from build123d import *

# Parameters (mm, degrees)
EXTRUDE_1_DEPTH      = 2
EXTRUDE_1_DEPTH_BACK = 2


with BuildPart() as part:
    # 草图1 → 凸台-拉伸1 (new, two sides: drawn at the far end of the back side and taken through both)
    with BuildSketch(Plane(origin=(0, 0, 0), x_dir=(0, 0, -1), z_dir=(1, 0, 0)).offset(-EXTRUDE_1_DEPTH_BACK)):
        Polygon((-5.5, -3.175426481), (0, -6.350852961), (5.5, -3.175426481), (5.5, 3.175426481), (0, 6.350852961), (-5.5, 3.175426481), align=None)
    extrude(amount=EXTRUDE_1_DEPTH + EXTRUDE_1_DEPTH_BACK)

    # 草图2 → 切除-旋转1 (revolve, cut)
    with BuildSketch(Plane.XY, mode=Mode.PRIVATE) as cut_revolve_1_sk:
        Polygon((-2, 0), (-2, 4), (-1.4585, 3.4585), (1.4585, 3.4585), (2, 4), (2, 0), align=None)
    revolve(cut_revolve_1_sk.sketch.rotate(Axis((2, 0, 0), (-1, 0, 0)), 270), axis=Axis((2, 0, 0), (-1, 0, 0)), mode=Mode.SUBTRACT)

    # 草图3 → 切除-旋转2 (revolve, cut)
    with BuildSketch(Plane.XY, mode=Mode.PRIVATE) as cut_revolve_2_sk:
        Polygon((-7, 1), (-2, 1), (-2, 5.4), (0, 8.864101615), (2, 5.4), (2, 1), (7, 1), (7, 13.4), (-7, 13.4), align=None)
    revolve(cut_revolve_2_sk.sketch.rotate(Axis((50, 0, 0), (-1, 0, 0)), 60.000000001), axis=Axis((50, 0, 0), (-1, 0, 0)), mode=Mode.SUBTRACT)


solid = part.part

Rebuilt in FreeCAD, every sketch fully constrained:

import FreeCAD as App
import Part
import Sketcher

V = App.Vector
Q = App.Units.Quantity

doc = App.newDocument("Part")
body = doc.addObject("PartDesign::Body", "Body")

# Sketch on YZ plane
sketch1 = doc.addObject("Sketcher::SketchObject", "Sketch")
body.addObject(sketch1)
sketch1.AttachmentSupport = (doc.YZ_Plane, [""])
sketch1.MapMode = "FlatFace"
sketch1.addGeometry([
    Part.LineSegment(V(-3.175426, 5.5, 0), V(-6.350853, 0, 0)),  # 0
    Part.LineSegment(V(-6.350853, 0, 0), V(-3.175426, -5.5, 0)),  # 1
    Part.LineSegment(V(-3.175426, -5.5, 0), V(3.175426, -5.5, 0)),  # 2
    Part.LineSegment(V(3.175426, -5.5, 0), V(6.350853, 0, 0)),  # 3
    Part.LineSegment(V(6.350853, 0, 0), V(3.175426, 5.5, 0)),  # 4
    Part.LineSegment(V(3.175426, 5.5, 0), V(-3.175426, 5.5, 0)),  # 5
], False)
sketch1.addConstraint([
    Sketcher.Constraint("Coincident", 0, 2, 1, 1),
    Sketcher.Constraint("Coincident", 1, 2, 2, 1),
    Sketcher.Constraint("Coincident", 2, 2, 3, 1),
    Sketcher.Constraint("Coincident", 3, 2, 4, 1),
    Sketcher.Constraint("Coincident", 4, 2, 5, 1),
    Sketcher.Constraint("Coincident", 5, 2, 0, 1),
    Sketcher.Constraint("Horizontal", 2),
    Sketcher.Constraint("Horizontal", 5),
    Sketcher.Constraint("Symmetric", 0, 2, 3, 2, -1, 1),
    Sketcher.Constraint("Symmetric", 1, 2, 4, 2, -1, 1),
    Sketcher.Constraint("PointOnObject", 0, 2, -1),
    Sketcher.Constraint("Parallel", 0, 3),
    Sketcher.Constraint("Vertical", 2, 2, 4, 2),
    Sketcher.Constraint("Angle", 0, Q("-120 deg")),
    Sketcher.Constraint("DistanceY", 2, 2, 4, 2, 11.0),
    Sketcher.Constraint("DistanceX", 2, 1, 2, 2, 6.350853),
])
pad1 = doc.addObject("PartDesign::Pad", "Pad")
body.addObject(pad1)
pad1.Profile = sketch1
pad1.Type = "TwoLengths"
pad1.Length = 2
pad1.Length2 = 2

# Sketch on XY plane
sketch2 = doc.addObject("Sketcher::SketchObject", "Sketch001")
body.addObject(sketch2)
sketch2.AttachmentSupport = (doc.XY_Plane, [""])
sketch2.MapMode = "FlatFace"
sketch2.addGeometry([
    Part.LineSegment(V(-2, 4, 0), V(-2, 0, 0)),  # 0
    Part.LineSegment(V(-2, 0, 0), V(2, 0, 0)),  # 1
    Part.LineSegment(V(2, 0, 0), V(2, 4, 0)),  # 2
    Part.LineSegment(V(2, 4, 0), V(1.4585, 3.4585, 0)),  # 3
    Part.LineSegment(V(1.4585, 3.4585, 0), V(-1.4585, 3.4585, 0)),  # 4
    Part.LineSegment(V(-1.4585, 3.4585, 0), V(-2, 4, 0)),  # 5
], False)
sketch2.addConstraint([
    Sketcher.Constraint("Coincident", 0, 2, 1, 1),
    Sketcher.Constraint("Coincident", 1, 2, 2, 1),
    Sketcher.Constraint("Coincident", 2, 2, 3, 1),
    Sketcher.Constraint("Coincident", 3, 2, 4, 1),
    Sketcher.Constraint("Coincident", 4, 2, 5, 1),
    Sketcher.Constraint("Coincident", 5, 2, 0, 1),
    Sketcher.Constraint("Vertical", 0),
    Sketcher.Constraint("Horizontal", 1),
    Sketcher.Constraint("Vertical", 2),
    Sketcher.Constraint("Horizontal", 4),
    Sketcher.Constraint("Symmetric", 0, 2, 1, 2, -1, 1),
    Sketcher.Constraint("Perpendicular", 3, 5),
    Sketcher.Constraint("Horizontal", 2, 2, 5, 2),
    Sketcher.Constraint("Equal", 1, 0),
    Sketcher.Constraint("Equal", 3, 5),
    Sketcher.Constraint("DistanceX", 1, 1, 1, 2, 4.0),
    Sketcher.Constraint("DistanceX", 4, 2, 4, 1, 2.917),
])
groove = doc.addObject("PartDesign::Groove", "Groove")
body.addObject(groove)
groove.Profile = sketch2
groove.ReferenceAxis = (sketch2, ["H_Axis"])
groove.Angle = 360

# Sketch on XY plane
sketch3 = doc.addObject("Sketcher::SketchObject", "Sketch002")
body.addObject(sketch3)
sketch3.AttachmentSupport = (doc.XY_Plane, [""])
sketch3.MapMode = "FlatFace"
sketch3.addGeometry([
    Part.LineSegment(V(-7, 1, 0), V(-2, 1, 0)),  # 0
    Part.LineSegment(V(-2, 1, 0), V(-2, 5.4, 0)),  # 1
    Part.LineSegment(V(-2, 5.4, 0), V(0, 8.864102, 0)),  # 2
    Part.LineSegment(V(0, 8.864102, 0), V(2, 5.4, 0)),  # 3
    Part.LineSegment(V(2, 5.4, 0), V(2, 1, 0)),  # 4
    Part.LineSegment(V(2, 1, 0), V(7, 1, 0)),  # 5
    Part.LineSegment(V(7, 1, 0), V(7, 13.4, 0)),  # 6
    Part.LineSegment(V(7, 13.4, 0), V(-7, 13.4, 0)),  # 7
    Part.LineSegment(V(-7, 13.4, 0), V(-7, 1, 0)),  # 8
], False)
sketch3.addConstraint([
    Sketcher.Constraint("Coincident", 0, 2, 1, 1),
    Sketcher.Constraint("Coincident", 1, 2, 2, 1),
    Sketcher.Constraint("Coincident", 2, 2, 3, 1),
    Sketcher.Constraint("Coincident", 3, 2, 4, 1),
    Sketcher.Constraint("Coincident", 4, 2, 5, 1),
    Sketcher.Constraint("Coincident", 5, 2, 6, 1),
    Sketcher.Constraint("Coincident", 6, 2, 7, 1),
    Sketcher.Constraint("Coincident", 7, 2, 8, 1),
    Sketcher.Constraint("Coincident", 8, 2, 0, 1),
    Sketcher.Constraint("Horizontal", 0),
    Sketcher.Constraint("Vertical", 1),
    Sketcher.Constraint("Vertical", 4),
    Sketcher.Constraint("Horizontal", 5),
    Sketcher.Constraint("Vertical", 6),
    Sketcher.Constraint("Horizontal", 7),
    Sketcher.Constraint("Vertical", 8),
    Sketcher.Constraint("Symmetric", 1, 2, 3, 2, -2),
    Sketcher.Constraint("Symmetric", 5, 2, 8, 2, -2),
    Sketcher.Constraint("PointOnObject", 2, 2, -2),
    Sketcher.Constraint("DistanceX", 0, 1, 0, 2, 5.0),
    Sketcher.Constraint("DistanceX", 7, 2, 7, 1, 14.0),
    Sketcher.Constraint("Angle", 2, Q("60 deg")),
    Sketcher.Constraint("DistanceY", 1, 1, 1, 2, 4.4),
    Sketcher.Constraint("DistanceY", 6, 1, 6, 2, 12.4),
    Sketcher.Constraint("DistanceY", -1, 1, 0, 2, 1.0),
])
groove2 = doc.addObject("PartDesign::Groove", "Groove001")
body.addObject(groove2)
groove2.Profile = sketch3
groove2.ReferenceAxis = (sketch3, ["H_Axis"])
groove2.Angle = 360

doc.recompute()
